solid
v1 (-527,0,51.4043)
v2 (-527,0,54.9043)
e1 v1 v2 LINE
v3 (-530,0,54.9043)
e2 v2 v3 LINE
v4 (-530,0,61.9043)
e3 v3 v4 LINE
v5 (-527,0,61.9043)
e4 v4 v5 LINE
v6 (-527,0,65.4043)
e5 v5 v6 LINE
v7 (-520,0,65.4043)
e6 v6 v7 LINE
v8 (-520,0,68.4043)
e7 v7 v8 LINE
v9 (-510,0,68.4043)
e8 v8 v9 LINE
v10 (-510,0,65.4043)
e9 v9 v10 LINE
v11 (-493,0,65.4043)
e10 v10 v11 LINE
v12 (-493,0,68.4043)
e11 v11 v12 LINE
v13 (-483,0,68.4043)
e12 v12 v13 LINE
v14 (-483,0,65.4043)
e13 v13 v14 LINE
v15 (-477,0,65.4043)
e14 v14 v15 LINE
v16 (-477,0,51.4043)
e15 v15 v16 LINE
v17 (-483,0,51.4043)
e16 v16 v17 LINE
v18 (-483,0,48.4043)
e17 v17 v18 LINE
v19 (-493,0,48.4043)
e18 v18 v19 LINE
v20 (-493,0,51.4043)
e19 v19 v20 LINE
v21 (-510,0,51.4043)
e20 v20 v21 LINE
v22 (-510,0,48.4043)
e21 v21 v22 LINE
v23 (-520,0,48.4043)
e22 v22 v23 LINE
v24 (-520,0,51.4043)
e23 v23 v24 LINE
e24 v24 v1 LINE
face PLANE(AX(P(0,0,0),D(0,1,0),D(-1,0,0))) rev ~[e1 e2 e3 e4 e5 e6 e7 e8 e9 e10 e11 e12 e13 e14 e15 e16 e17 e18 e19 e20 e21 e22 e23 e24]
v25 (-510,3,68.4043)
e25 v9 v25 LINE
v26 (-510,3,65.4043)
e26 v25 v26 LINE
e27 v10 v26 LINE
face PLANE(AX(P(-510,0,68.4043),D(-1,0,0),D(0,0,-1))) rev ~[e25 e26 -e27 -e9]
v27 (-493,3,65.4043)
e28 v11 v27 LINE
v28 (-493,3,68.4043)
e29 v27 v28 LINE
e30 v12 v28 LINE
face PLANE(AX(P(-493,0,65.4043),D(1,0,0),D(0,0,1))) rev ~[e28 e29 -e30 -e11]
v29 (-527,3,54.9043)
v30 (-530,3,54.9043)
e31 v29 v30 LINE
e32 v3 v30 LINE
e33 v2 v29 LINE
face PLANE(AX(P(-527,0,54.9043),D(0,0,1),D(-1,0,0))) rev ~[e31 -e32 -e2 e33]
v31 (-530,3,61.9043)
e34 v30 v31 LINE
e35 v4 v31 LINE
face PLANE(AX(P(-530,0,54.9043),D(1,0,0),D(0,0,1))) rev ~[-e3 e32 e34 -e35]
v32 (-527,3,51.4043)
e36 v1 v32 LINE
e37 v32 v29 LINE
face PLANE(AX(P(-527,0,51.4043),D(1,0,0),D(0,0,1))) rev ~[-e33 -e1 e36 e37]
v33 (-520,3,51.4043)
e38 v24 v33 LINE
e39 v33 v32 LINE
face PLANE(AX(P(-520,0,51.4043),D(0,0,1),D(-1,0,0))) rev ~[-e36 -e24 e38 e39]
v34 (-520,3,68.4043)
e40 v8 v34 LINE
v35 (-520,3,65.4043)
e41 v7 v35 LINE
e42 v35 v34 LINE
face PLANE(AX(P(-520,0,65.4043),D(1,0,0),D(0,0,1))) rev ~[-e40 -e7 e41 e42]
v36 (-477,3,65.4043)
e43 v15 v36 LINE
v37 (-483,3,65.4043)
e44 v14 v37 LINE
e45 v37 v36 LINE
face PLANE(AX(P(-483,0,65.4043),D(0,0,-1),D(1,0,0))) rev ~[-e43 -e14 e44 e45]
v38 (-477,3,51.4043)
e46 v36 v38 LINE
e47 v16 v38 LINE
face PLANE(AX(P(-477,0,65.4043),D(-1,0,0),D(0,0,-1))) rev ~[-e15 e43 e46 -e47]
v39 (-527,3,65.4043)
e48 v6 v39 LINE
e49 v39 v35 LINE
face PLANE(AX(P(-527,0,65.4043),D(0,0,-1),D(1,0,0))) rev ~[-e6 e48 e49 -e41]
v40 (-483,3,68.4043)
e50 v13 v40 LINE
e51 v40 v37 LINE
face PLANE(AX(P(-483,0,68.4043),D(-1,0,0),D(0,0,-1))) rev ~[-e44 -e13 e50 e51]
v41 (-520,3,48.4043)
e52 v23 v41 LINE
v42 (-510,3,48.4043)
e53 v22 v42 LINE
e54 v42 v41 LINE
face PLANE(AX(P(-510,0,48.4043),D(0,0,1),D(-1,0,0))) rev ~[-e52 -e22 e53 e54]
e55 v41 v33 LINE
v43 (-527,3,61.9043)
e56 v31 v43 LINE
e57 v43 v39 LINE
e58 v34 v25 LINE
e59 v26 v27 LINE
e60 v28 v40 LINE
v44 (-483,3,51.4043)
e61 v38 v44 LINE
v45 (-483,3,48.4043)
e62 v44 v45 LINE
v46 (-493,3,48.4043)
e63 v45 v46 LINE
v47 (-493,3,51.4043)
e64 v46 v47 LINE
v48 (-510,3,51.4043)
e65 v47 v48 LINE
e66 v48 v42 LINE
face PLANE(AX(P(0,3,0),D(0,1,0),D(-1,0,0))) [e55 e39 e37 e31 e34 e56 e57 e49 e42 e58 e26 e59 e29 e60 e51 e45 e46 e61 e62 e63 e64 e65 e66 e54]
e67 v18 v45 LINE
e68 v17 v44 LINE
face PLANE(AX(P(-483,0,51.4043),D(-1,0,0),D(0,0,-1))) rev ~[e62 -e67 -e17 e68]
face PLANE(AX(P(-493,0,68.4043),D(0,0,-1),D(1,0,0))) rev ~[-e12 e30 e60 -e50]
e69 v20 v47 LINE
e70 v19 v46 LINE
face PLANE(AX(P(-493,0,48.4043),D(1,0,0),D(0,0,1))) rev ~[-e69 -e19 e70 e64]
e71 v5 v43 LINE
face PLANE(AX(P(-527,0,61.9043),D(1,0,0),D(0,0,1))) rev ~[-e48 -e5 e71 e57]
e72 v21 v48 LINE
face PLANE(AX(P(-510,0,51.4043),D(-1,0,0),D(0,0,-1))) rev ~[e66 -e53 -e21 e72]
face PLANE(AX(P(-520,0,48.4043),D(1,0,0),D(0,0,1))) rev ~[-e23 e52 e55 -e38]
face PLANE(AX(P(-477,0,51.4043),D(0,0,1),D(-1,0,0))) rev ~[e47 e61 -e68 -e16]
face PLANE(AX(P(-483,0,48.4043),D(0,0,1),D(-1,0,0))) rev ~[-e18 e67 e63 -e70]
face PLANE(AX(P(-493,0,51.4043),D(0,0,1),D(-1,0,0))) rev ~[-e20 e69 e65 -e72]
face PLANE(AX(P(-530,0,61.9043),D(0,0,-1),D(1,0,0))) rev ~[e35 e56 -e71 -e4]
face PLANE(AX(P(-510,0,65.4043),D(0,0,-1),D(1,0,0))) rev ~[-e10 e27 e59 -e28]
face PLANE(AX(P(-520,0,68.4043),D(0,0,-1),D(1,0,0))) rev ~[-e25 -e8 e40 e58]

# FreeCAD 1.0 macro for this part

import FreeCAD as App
import Part
import Sketcher
Q = App.Units.Quantity


def add_polygon(sketch, points):
    """Adds a closed chain of lines whose ends are joined by coincident constraints."""
    first, n = sketch.GeometryCount, len(points)
    for a, b in zip(points, points[1:] + points[:1]):
        sketch.addGeometry(Part.LineSegment(App.Vector(*a, 0), App.Vector(*b, 0)), False)
    for i in range(n):
        sketch.addConstraint(Sketcher.Constraint("Coincident", first + i, 2, first + (i + 1) % n, 1))

doc = App.newDocument("Part")
body = doc.addObject("PartDesign::Body", "Body")

sketch1 = body.newObject("Sketcher::SketchObject", "Sketch")
sketch1.AttachmentSupport = (doc.getObject("XZ_Plane"), [""])
sketch1.MapMode = "FlatFace"
add_polygon(sketch1, [(-510, 48.4), (-520, 48.4), (-520, 51.4), (-527, 51.4), (-527, 54.9), (-530, 54.9), (-530, 61.9), (-527, 61.9), (-527, 65.4), (-520, 65.4), (-520, 68.4), (-510, 68.4), (-510, 65.4), (-493, 65.4), (-493, 68.4), (-483, 68.4), (-483, 65.4), (-477, 65.4), (-477, 51.4), (-483, 51.4), (-483, 48.4), (-493, 48.4), (-493, 51.4), (-510, 51.4)])
sketch1.addConstraint([
    Sketcher.Constraint("Horizontal", 0),
    Sketcher.Constraint("Vertical", 1),
    Sketcher.Constraint("Horizontal", 2),
    Sketcher.Constraint("Vertical", 3),
    Sketcher.Constraint("Horizontal", 4),
    Sketcher.Constraint("Vertical", 5),
    Sketcher.Constraint("Horizontal", 6),
    Sketcher.Constraint("Vertical", 7),
    Sketcher.Constraint("Horizontal", 8),
    Sketcher.Constraint("Vertical", 9),
    Sketcher.Constraint("Horizontal", 10),
    Sketcher.Constraint("Vertical", 11),
    Sketcher.Constraint("Horizontal", 12),
    Sketcher.Constraint("Vertical", 13),
    Sketcher.Constraint("Horizontal", 14),
    Sketcher.Constraint("Vertical", 15),
    Sketcher.Constraint("Horizontal", 16),
    Sketcher.Constraint("Vertical", 17),
    Sketcher.Constraint("Horizontal", 18),
    Sketcher.Constraint("Vertical", 19),
    Sketcher.Constraint("Horizontal", 20),
    Sketcher.Constraint("Vertical", 21),
    Sketcher.Constraint("Horizontal", 22),
    Sketcher.Constraint("Vertical", 23),
    Sketcher.Constraint("Horizontal", 8, 2, 11, 2),
    Sketcher.Constraint("Horizontal", 10, 2, 13, 2),
    Sketcher.Constraint("Horizontal", 12, 2, 15, 2),
    Sketcher.Constraint("Horizontal", 2, 2, 17, 2),
    Sketcher.Constraint("Horizontal", 0, 2, 19, 2),
    Sketcher.Constraint("Horizontal", 18, 2, 21, 2),
    Sketcher.Constraint("Vertical", 3, 2, 6, 2),
    Sketcher.Constraint("Vertical", 1, 2, 8, 2),
    Sketcher.Constraint("Vertical", 15, 2, 18, 2),
    Sketcher.Constraint("Vertical", 13, 2, 20, 2),
    Sketcher.Constraint("Vertical", 11, 2, 22, 2),
    Sketcher.Constraint("Equal", 10, 14),
    Sketcher.Constraint("Equal", 6, 1),
    Sketcher.Constraint("Equal", 8, 5),
    Sketcher.Constraint("Equal", 3, 7),
    Sketcher.Constraint("Equal", 1, 9),
    Sketcher.Constraint("DistanceX", 0, 2, 0, 1, Q("10 mm")),
    Sketcher.Constraint("DistanceX", 2, 2, 2, 1, Q("7 mm")),
    Sketcher.Constraint("DistanceX", 4, 2, 4, 1, Q("3 mm")),
    Sketcher.Constraint("DistanceX", 12, 1, 12, 2, Q("17 mm")),
    Sketcher.Constraint("DistanceX", 16, 1, 16, 2, Q("6 mm")),
    Sketcher.Constraint("DistanceY", 17, 2, 17, 1, Q("14 mm")),
    Sketcher.Constraint("DistanceX", 0, 2, -1, 1, Q("520 mm")),
    Sketcher.Constraint("DistanceY", -1, 1, 0, 2, Q("48.4043 mm")),
])
pad1 = body.newObject("PartDesign::Pad", "Pad")
pad1.Profile = sketch1
pad1.Length = 3
pad1.Reversed = True

doc.recompute()
